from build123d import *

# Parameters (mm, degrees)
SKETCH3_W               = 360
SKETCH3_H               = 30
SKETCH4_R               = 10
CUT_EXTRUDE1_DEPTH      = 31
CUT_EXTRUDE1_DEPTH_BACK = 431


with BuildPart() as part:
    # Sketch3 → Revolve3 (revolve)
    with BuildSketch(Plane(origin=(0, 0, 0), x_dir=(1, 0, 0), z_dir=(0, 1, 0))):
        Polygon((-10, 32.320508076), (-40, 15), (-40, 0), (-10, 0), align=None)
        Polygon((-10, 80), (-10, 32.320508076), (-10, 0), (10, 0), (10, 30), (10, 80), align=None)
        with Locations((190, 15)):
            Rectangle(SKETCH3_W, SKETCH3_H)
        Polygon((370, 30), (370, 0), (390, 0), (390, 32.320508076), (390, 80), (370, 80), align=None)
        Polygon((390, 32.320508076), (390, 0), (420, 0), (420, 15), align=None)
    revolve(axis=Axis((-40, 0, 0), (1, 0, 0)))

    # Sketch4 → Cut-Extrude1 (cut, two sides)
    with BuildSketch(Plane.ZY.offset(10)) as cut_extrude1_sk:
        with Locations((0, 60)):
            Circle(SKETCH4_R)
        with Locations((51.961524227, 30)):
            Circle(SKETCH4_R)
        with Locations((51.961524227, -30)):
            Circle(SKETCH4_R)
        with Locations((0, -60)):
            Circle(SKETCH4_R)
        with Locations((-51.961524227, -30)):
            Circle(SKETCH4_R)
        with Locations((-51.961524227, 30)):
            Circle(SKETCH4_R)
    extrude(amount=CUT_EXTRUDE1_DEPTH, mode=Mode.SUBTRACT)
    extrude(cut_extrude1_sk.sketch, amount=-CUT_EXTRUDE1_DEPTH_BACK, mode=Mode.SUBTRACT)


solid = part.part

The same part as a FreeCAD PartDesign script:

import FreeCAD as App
import Part
import Sketcher
from FreeCAD import Vector
Q = App.Units.Quantity

doc = App.newDocument("Part")
params = doc.addObject("Spreadsheet::Sheet", "Params")
for row, (alias, value) in enumerate([
    ("sketch1_width", "460 mm"),
    ("sketch1_width2", "20 mm"),
    ("sketch1_width3", "360 mm"),
    ("sketch1_height", "15 mm"),
    ("sketch1_height2", "50 mm"),
    ("revolution_angle", "360 deg"),
    ("sketch2_diameter", "20 mm"),
], start=1):
    params.set(f"A{row}", alias)
    params.set(f"B{row}", "=" + value)
    params.setAlias(f"B{row}", alias)

body = doc.addObject("PartDesign::Body", "Body")

sketch1 = doc.addObject("Sketcher::SketchObject", "Sketch")
body.addObject(sketch1)
sketch1.AttachmentSupport = (doc.XZ_Plane, [""])
sketch1.MapMode = "FlatFace"
sketch1.addGeometry(Part.LineSegment(Vector(-10, -32, 0), Vector(-40, -15, 0)), False)
sketch1.addGeometry(Part.LineSegment(Vector(-40, -15, 0), Vector(-40, 0, 0)), False)
sketch1.addGeometry(Part.LineSegment(Vector(-40, 0, 0), Vector(420, 0, 0)), False)
sketch1.addGeometry(Part.LineSegment(Vector(420, 0, 0), Vector(420, -15, 0)), False)
sketch1.addGeometry(Part.LineSegment(Vector(420, -15, 0), Vector(390, -32, 0)), False)
sketch1.addGeometry(Part.LineSegment(Vector(390, -32, 0), Vector(390, -80, 0)), False)
sketch1.addGeometry(Part.LineSegment(Vector(390, -80, 0), Vector(370, -80, 0)), False)
sketch1.addGeometry(Part.LineSegment(Vector(370, -80, 0), Vector(370, -30, 0)), False)
sketch1.addGeometry(Part.LineSegment(Vector(370, -30, 0), Vector(10, -30, 0)), False)
sketch1.addGeometry(Part.LineSegment(Vector(10, -30, 0), Vector(10, -80, 0)), False)
sketch1.addGeometry(Part.LineSegment(Vector(10, -80, 0), Vector(-10, -80, 0)), False)
sketch1.addGeometry(Part.LineSegment(Vector(-10, -80, 0), Vector(-10, -32, 0)), False)
sketch1.addConstraint(Sketcher.Constraint("Coincident", 0, 2, 1, 1))
sketch1.addConstraint(Sketcher.Constraint("Coincident", 1, 2, 2, 1))
sketch1.addConstraint(Sketcher.Constraint("Coincident", 2, 2, 3, 1))
sketch1.addConstraint(Sketcher.Constraint("Coincident", 3, 2, 4, 1))
sketch1.addConstraint(Sketcher.Constraint("Coincident", 4, 2, 5, 1))
sketch1.addConstraint(Sketcher.Constraint("Coincident", 5, 2, 6, 1))
sketch1.addConstraint(Sketcher.Constraint("Coincident", 6, 2, 7, 1))
sketch1.addConstraint(Sketcher.Constraint("Coincident", 7, 2, 8, 1))
sketch1.addConstraint(Sketcher.Constraint("Coincident", 8, 2, 9, 1))
sketch1.addConstraint(Sketcher.Constraint("Coincident", 9, 2, 10, 1))
sketch1.addConstraint(Sketcher.Constraint("Coincident", 10, 2, 11, 1))
sketch1.addConstraint(Sketcher.Constraint("Coincident", 11, 2, 0, 1))
sketch1.addConstraint(Sketcher.Constraint("Vertical", 1))
sketch1.addConstraint(Sketcher.Constraint("Horizontal", 2))
sketch1.addConstraint(Sketcher.Constraint("Vertical", 3))
sketch1.addConstraint(Sketcher.Constraint("Vertical", 5))
sketch1.addConstraint(Sketcher.Constraint("Horizontal", 6))
sketch1.addConstraint(Sketcher.Constraint("Vertical", 7))
sketch1.addConstraint(Sketcher.Constraint("Horizontal", 8))
sketch1.addConstraint(Sketcher.Constraint("Vertical", 9))
sketch1.addConstraint(Sketcher.Constraint("Horizontal", 10))
sketch1.addConstraint(Sketcher.Constraint("Vertical", 11))
sketch1.addConstraint(Sketcher.Constraint("PointOnObject", 1, 2, -1))
sketch1.addConstraint(Sketcher.Constraint("Horizontal", 0, 2, 3, 2))
sketch1.addConstraint(Sketcher.Constraint("Horizontal", 6, 2, 9, 2))
sketch1.addConstraint(Sketcher.Constraint("Horizontal", 4, 2, 11, 2))
sketch1.addConstraint(Sketcher.Constraint("Equal", 6, 10))
sketch1.addConstraint(Sketcher.Constraint("Equal", 0, 4))
sketch1.addConstraint(Sketcher.Constraint("DistanceX", 2, 1, 2, 2, Q("460 mm")))
sketch1.addConstraint(Sketcher.Constraint("DistanceX", 6, 2, 6, 1, Q("20 mm")))
sketch1.addConstraint(Sketcher.Constraint("DistanceX", 8, 2, 8, 1, Q("360 mm")))
sketch1.addConstraint(Sketcher.Constraint("DistanceY", 1, 1, 1, 2, Q("15 mm")))
sketch1.addConstraint(Sketcher.Constraint("DistanceY", 7, 1, 7, 2, Q("50 mm")))
sketch1.addConstraint(Sketcher.Constraint("Angle", 0, Q("150 deg")))
sketch1.addConstraint(Sketcher.Constraint("DistanceX", 0, 2, -1, 1, Q("40 mm")))
sketch1.addConstraint(Sketcher.Constraint("DistanceY", 5, 2, -1, 1, Q("80 mm")))
sketch1.setExpression("Constraints[28]", "Params.sketch1_width")
sketch1.setExpression("Constraints[29]", "Params.sketch1_width2")
sketch1.setExpression("Constraints[30]", "Params.sketch1_width3")
sketch1.setExpression("Constraints[31]", "Params.sketch1_height")
sketch1.setExpression("Constraints[32]", "Params.sketch1_height2")
revolution = doc.addObject("PartDesign::Revolution", "Revolution")
body.addObject(revolution)
revolution.Profile = sketch1
revolution.ReferenceAxis = (sketch1, ["H_Axis"])
revolution.setExpression("Angle", "Params.revolution_angle")

sketch2 = doc.addObject("Sketcher::SketchObject", "Sketch001")
body.addObject(sketch2)
sketch2.AttachmentSupport = (doc.YZ_Plane, [""])
sketch2.MapMode = "FlatFace"
sketch2.AttachmentOffset = App.Placement(Vector(0, 0, -10), App.Rotation())
sketch2.addGeometry(Part.Circle(Vector(60, 0, 0), Vector(0, 0, 1), 10), False)
sketch2.addGeometry(Part.Circle(Vector(30, 52, 0), Vector(0, 0, 1), 10), False)
sketch2.addGeometry(Part.Circle(Vector(-30, 52, 0), Vector(0, 0, 1), 10), False)
sketch2.addGeometry(Part.Circle(Vector(-60, 0, 0), Vector(0, 0, 1), 10), False)
sketch2.addGeometry(Part.Circle(Vector(-30, -52, 0), Vector(0, 0, 1), 10), False)
sketch2.addGeometry(Part.Circle(Vector(30, -52, 0), Vector(0, 0, 1), 10), False)
sketch2.addConstraint(Sketcher.Constraint("Equal", 0, 1))
sketch2.addConstraint(Sketcher.Constraint("Equal", 1, 2))
sketch2.addConstraint(Sketcher.Constraint("Equal", 2, 3))
sketch2.addConstraint(Sketcher.Constraint("Equal", 3, 4))
sketch2.addConstraint(Sketcher.Constraint("Equal", 4, 5))
sketch2.addConstraint(Sketcher.Constraint("Symmetric", 0, 3, 3, 3, -1, 1))
sketch2.addConstraint(Sketcher.Constraint("Symmetric", 1, 3, 4, 3, -1, 1))
sketch2.addConstraint(Sketcher.Constraint("Symmetric", 2, 3, 5, 3, -1, 1))
sketch2.addConstraint(Sketcher.Constraint("Symmetric", 1, 3, 2, 3, -2))
sketch2.addConstraint(Sketcher.Constraint("PointOnObject", 0, 3, -1))
sketch2.addConstraint(Sketcher.Constraint("Diameter", 0, Q("20 mm")))
sketch2.addConstraint(Sketcher.Constraint("DistanceX", -1, 1, 0, 3, Q("60 mm")))
sketch2.addConstraint(Sketcher.Constraint("DistanceX", -1, 1, 1, 3, Q("30 mm")))
sketch2.addConstraint(Sketcher.Constraint("DistanceY", 4, 3, 2, 3, Q("103.923048 mm")))
sketch2.setExpression("Constraints[10]", "Params.sketch2_diameter")
pocket1 = doc.addObject("PartDesign::Pocket", "Pocket")
body.addObject(pocket1)
pocket1.Profile = sketch2
pocket1.Type = "ThroughAll"
pocket1.Midplane = True

doc.recompute()
